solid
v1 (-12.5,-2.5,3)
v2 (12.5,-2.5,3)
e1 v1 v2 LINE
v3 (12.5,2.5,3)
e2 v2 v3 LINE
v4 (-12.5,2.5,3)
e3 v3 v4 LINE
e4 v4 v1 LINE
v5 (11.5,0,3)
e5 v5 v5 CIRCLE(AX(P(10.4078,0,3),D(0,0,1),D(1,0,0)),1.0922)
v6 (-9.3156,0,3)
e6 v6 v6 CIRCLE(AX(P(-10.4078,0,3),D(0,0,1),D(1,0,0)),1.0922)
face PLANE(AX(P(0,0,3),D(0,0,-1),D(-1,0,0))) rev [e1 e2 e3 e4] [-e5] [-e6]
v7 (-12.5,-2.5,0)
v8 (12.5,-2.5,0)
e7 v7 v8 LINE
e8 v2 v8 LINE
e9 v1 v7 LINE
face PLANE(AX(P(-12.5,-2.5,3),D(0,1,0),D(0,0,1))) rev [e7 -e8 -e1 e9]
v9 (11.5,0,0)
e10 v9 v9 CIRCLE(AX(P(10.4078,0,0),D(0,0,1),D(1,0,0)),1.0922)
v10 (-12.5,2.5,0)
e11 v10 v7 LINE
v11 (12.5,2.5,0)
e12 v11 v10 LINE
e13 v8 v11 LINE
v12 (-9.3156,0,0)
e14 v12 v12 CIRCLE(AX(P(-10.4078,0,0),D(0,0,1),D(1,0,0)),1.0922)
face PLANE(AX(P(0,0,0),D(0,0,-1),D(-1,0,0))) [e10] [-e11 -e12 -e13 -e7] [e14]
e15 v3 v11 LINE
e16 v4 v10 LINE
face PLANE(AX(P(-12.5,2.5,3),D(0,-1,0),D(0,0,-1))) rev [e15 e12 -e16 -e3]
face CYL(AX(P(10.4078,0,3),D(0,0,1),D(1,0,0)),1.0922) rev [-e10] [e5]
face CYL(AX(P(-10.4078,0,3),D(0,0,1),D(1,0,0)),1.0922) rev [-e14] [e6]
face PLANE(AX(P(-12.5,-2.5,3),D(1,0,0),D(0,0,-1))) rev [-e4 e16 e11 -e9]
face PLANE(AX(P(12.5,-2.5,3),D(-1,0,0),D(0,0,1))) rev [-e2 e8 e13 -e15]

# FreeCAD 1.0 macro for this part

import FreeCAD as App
import Part
import Sketcher
from FreeCAD import Vector


def add_polygon(sketch, points):
    """Adds a closed chain of lines whose ends are joined by coincident constraints."""
    first, n = sketch.GeometryCount, len(points)
    for a, b in zip(points, points[1:] + points[:1]):
        sketch.addGeometry(Part.LineSegment(App.Vector(*a, 0), App.Vector(*b, 0)), False)
    for i in range(n):
        sketch.addConstraint(Sketcher.Constraint("Coincident", first + i, 2, first + (i + 1) % n, 1))

doc = App.newDocument("Part")
body = doc.addObject("PartDesign::Body", "Body")

sketch1 = body.newObject("Sketcher::SketchObject", "Sketch")
sketch1.AttachmentSupport = (doc.getObject("XY_Plane"), [""])
sketch1.MapMode = "FlatFace"
add_polygon(sketch1, [(-12, 2), (-12, -2), (12, -2), (12, 2)])
sketch1.addConstraint([
    Sketcher.Constraint("Vertical", 0),
    Sketcher.Constraint("Horizontal", 1),
    Sketcher.Constraint("Vertical", 2),
    Sketcher.Constraint("Horizontal", 3),
    Sketcher.Constraint("Symmetric", 0, 2, 2, 2, -1, 1),
    Sketcher.Constraint("DistanceX", 1, 1, 1, 2, 25.0),
    Sketcher.Constraint("DistanceY", 0, 2, 0, 1, 5.0),
])
pad1 = body.newObject("PartDesign::Pad", "Pad")
pad1.Profile = sketch1
pad1.Length = 3

sketch2 = body.newObject("Sketcher::SketchObject", "Sketch001")
sketch2.AttachmentSupport = (doc.getObject("XY_Plane"), [""])
sketch2.MapMode = "FlatFace"
sketch2.AttachmentOffset = App.Placement(Vector(0, 0, 3), App.Rotation())
sketch2.addGeometry([
    Part.Circle(Vector(-10.4, 0, 0), Vector(0, 0, 1), 1.1),
    Part.Circle(Vector(10.4, 0, 0), Vector(0, 0, 1), 1.1),
], False)
sketch2.addConstraint([
    Sketcher.Constraint("Equal", 0, 1),
    Sketcher.Constraint("Symmetric", 0, 3, 1, 3, -1, 1),
    Sketcher.Constraint("PointOnObject", 0, 3, -1),
    Sketcher.Constraint("Diameter", 0, 2.1844),
    Sketcher.Constraint("DistanceX", 0, 3, -1, 1, 10.4078),
])
doc.recompute()
hole = body.newObject("PartDesign::Hole", "Hole")
hole.Profile = sketch2
hole.ThreadType = "None"
hole.Diameter = 2.1844
hole.DepthType = "ThroughAll"

doc.recompute()
